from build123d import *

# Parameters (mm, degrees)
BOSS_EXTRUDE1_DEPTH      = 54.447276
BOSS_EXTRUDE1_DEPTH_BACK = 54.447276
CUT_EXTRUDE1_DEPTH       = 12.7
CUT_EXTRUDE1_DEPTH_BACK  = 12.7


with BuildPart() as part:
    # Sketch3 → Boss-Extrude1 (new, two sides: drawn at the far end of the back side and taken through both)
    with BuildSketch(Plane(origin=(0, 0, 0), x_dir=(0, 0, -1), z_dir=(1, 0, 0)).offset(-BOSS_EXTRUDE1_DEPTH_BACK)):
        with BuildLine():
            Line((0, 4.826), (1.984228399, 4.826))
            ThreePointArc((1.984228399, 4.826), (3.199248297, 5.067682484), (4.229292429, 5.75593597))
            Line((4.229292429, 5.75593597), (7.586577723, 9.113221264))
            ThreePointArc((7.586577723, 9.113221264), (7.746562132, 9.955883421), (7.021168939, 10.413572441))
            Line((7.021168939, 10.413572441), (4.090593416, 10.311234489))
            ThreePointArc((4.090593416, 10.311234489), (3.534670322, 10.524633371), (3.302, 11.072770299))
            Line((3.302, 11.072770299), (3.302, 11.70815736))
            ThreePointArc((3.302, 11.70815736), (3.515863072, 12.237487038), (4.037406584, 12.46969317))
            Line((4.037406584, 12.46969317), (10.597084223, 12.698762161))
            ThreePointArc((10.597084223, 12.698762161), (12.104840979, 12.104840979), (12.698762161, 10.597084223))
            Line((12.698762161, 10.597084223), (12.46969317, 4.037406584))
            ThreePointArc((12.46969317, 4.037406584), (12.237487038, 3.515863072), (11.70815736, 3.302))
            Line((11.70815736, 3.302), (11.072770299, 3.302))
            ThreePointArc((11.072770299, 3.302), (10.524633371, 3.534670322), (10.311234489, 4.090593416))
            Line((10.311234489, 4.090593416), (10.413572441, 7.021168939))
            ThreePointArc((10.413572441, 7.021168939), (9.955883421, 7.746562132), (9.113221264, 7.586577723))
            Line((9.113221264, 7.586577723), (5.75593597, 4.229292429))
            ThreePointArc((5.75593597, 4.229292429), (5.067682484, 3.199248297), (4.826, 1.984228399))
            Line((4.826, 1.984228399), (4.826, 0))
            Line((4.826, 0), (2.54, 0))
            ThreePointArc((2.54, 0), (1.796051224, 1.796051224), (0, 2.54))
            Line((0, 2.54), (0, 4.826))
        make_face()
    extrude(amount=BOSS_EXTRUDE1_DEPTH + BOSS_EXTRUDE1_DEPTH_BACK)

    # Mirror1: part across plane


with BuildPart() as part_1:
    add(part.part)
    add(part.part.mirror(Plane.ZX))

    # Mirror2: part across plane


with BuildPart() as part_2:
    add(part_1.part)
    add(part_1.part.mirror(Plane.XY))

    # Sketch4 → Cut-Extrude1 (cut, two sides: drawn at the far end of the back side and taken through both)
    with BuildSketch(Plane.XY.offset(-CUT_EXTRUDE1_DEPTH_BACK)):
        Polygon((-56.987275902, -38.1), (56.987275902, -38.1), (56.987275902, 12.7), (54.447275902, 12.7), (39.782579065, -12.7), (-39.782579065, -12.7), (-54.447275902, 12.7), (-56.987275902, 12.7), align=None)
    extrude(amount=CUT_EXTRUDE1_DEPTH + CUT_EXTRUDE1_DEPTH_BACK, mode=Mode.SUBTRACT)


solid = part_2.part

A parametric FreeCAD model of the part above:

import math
import FreeCAD as App
import Part
import Sketcher
Q = App.Units.Quantity

doc = App.newDocument("Part")
params = doc.addObject("Spreadsheet::Sheet", "Params")
for row, (alias, value) in enumerate([
    ("sketch1_radius", "0.1 in"),
    ("sketch1_radius2", "0.03 in"),
    ("sketch1_radius3", "0.08 in"),
    ("sketch1_radius4", "0.125 in"),
    ("sketch1_width", "0.09 in"),
    ("pad1_length", "54.447276 mm"),
    ("pad1_length2", "54.447276 mm"),
    ("sketch2_height", "2 in"),
    ("sketch2_width", "0.1 in"),
], start=1):
    params.set(f"A{row}", alias)
    params.set(f"B{row}", "=" + value)
    params.setAlias(f"B{row}", alias)

body = doc.addObject("PartDesign::Body", "Body")

# Sketch on YZ plane
sketch1 = body.newObject("Sketcher::SketchObject", "Sketch")
sketch1.AttachmentSupport = (doc.getObject("YZ_Plane"), [""])
sketch1.MapMode = "FlatFace"
sketch1.addGeometry([
    Part.LineSegment(App.Vector(4.826, -1.984228, 0), App.Vector(4.826, 0, 0)),  # 0
    Part.LineSegment(App.Vector(4.826, 0, 0), App.Vector(2.54, 0, 0)),  # 1
    Part.ArcOfCircle(Part.Circle(App.Vector(0, 0, 0), App.Vector(0, 0, 1), 2.54), math.radians(-90), math.radians(0)),  # 2
    Part.LineSegment(App.Vector(0, -2.54, 0), App.Vector(0, -4.826, 0)),  # 3
    Part.LineSegment(App.Vector(0, -4.826, 0), App.Vector(1.984228, -4.826, 0)),  # 4
    Part.ArcOfCircle(Part.Circle(App.Vector(1.984228, -8.001, 0), App.Vector(0, 0, 1), 3.175), math.radians(45), math.radians(90)),  # 5
    Part.LineSegment(App.Vector(4.229292, -5.755936, 0), App.Vector(7.586578, -9.113221, 0)),  # 6
    Part.ArcOfCircle(Part.Circle(App.Vector(7.047762, -9.652037, 0), App.Vector(0, 0, 1), 0.762), math.radians(-92), math.radians(45)),  # 7
    Part.LineSegment(App.Vector(7.021169, -10.413572, 0), App.Vector(4.090593, -10.311234, 0)),  # 8
    Part.ArcOfCircle(Part.Circle(App.Vector(4.064, -11.07277, 0), App.Vector(0, 0, 1), 0.762), math.radians(88), math.radians(180)),  # 9
    Part.LineSegment(App.Vector(3.302, -11.07277, 0), App.Vector(3.302, -11.708157, 0)),  # 10
    Part.ArcOfCircle(Part.Circle(App.Vector(4.064, -11.708157, 0), App.Vector(0, 0, 1), 0.762), math.radians(180), math.radians(268)),  # 11
    Part.LineSegment(App.Vector(4.037407, -12.469693, 0), App.Vector(10.597084, -12.698762, 0)),  # 12
    Part.ArcOfCircle(Part.Circle(App.Vector(10.668, -10.668, 0), App.Vector(0, 0, 1), 2.032), math.radians(-92), math.radians(2)),  # 13
    Part.LineSegment(App.Vector(12.698762, -10.597084, 0), App.Vector(12.469693, -4.037407, 0)),  # 14
    Part.ArcOfCircle(Part.Circle(App.Vector(11.708157, -4.064, 0), App.Vector(0, 0, 1), 0.762), math.radians(2), math.radians(90)),  # 15
    Part.LineSegment(App.Vector(11.708157, -3.302, 0), App.Vector(11.07277, -3.302, 0)),  # 16
    Part.ArcOfCircle(Part.Circle(App.Vector(11.07277, -4.064, 0), App.Vector(0, 0, 1), 0.762), math.radians(90), math.radians(182)),  # 17
    Part.LineSegment(App.Vector(10.311234, -4.090593, 0), App.Vector(10.413572, -7.021169, 0)),  # 18
    Part.ArcOfCircle(Part.Circle(App.Vector(9.652037, -7.047762, 0), App.Vector(0, 0, 1), 0.762), math.radians(-135), math.radians(2)),  # 19
    Part.LineSegment(App.Vector(9.113221, -7.586578, 0), App.Vector(5.755936, -4.229292, 0)),  # 20
    Part.ArcOfCircle(Part.Circle(App.Vector(8.001, -1.984228, 0), App.Vector(0, 0, 1), 3.175), math.radians(180), math.radians(225)),  # 21
], False)
sketch1.addConstraint([
    Sketcher.Constraint("Coincident", 0, 2, 1, 1),
    Sketcher.Constraint("Coincident", 1, 2, 2, 2),
    Sketcher.Constraint("Coincident", 2, 1, 3, 1),
    Sketcher.Constraint("Coincident", 3, 2, 4, 1),
    Sketcher.Constraint("Tangent", 4, 2, 5, 2),
    Sketcher.Constraint("Tangent", 5, 1, 6, 1),
    Sketcher.Constraint("Tangent", 6, 2, 7, 2),
    Sketcher.Constraint("Tangent", 7, 1, 8, 1),
    Sketcher.Constraint("Tangent", 8, 2, 9, 1),
    Sketcher.Constraint("Tangent", 9, 2, 10, 1),
    Sketcher.Constraint("Tangent", 10, 2, 11, 1),
    Sketcher.Constraint("Tangent", 11, 2, 12, 1),
    Sketcher.Constraint("Tangent", 12, 2, 13, 1),
    Sketcher.Constraint("Tangent", 13, 2, 14, 1),
    Sketcher.Constraint("Tangent", 14, 2, 15, 1),
    Sketcher.Constraint("Tangent", 15, 2, 16, 1),
    Sketcher.Constraint("Tangent", 16, 2, 17, 1),
    Sketcher.Constraint("Tangent", 17, 2, 18, 1),
    Sketcher.Constraint("Tangent", 18, 2, 19, 2),
    Sketcher.Constraint("Tangent", 19, 1, 20, 1),
    Sketcher.Constraint("Tangent", 20, 2, 21, 2),
    Sketcher.Constraint("Tangent", 21, 1, 0, 1),
    Sketcher.Constraint("Vertical", 0),
    Sketcher.Constraint("Horizontal", 1),
    Sketcher.Constraint("Vertical", 3),
    Sketcher.Constraint("Horizontal", 4),
    Sketcher.Constraint("Vertical", 10),
    Sketcher.Constraint("Horizontal", 16),
    Sketcher.Constraint("Coincident", 2, 3, -1, 1),
    Sketcher.Constraint("Equal", 7, 9),
    Sketcher.Constraint("Equal", 9, 11),
    Sketcher.Constraint("Equal", 11, 15),
    Sketcher.Constraint("Equal", 15, 17),
    Sketcher.Constraint("Equal", 17, 19),
    Sketcher.Constraint("Equal", 5, 21),
    Sketcher.Constraint("PointOnObject", 0, 2, -1),
    Sketcher.Constraint("PointOnObject", 2, 1, -2),
    Sketcher.Constraint("Parallel", 8, 12),
    Sketcher.Constraint("Parallel", 14, 18),
    Sketcher.Constraint("Parallel", 6, 20),
    Sketcher.Constraint("Equal", 4, 0),
    Sketcher.Constraint("Equal", 1, 3),
    Sketcher.Constraint("Equal", 16, 10),
    Sketcher.Constraint("Equal", 12, 14),
    Sketcher.Constraint("Equal", 8, 18),
    Sketcher.Constraint("Equal", 6, 20),
    Sketcher.Constraint("Radius", 2, Q("0.1 in")),
    Sketcher.Constraint("Radius", 7, Q("0.03 in")),
    Sketcher.Constraint("Radius", 13, Q("0.08 in")),
    Sketcher.Constraint("Angle", 6, Q("-45 deg")),
    Sketcher.Constraint("Angle", 8, Q("178 deg")),
    Sketcher.Constraint("Radius", 5, Q("0.125 in")),
    Sketcher.Constraint("DistanceX", 1, 2, 1, 1, Q("0.09 in")),
    Sketcher.Constraint("DistanceX", -1, 1, 9, 3, Q("0.16 in")),
    Sketcher.Constraint("DistanceX", -1, 1, 13, 3, Q("0.42 in")),
    Sketcher.Constraint("DistanceX", 4, 1, 4, 2, 1.984228),
    Sketcher.Constraint("DistanceY", 7, 3, 5, 1, 3.896101),
])
sketch1.setExpression("Constraints[46]", "Params.sketch1_radius")
sketch1.setExpression("Constraints[47]", "Params.sketch1_radius2")
sketch1.setExpression("Constraints[48]", "Params.sketch1_radius3")
sketch1.setExpression("Constraints[51]", "Params.sketch1_radius4")
sketch1.setExpression("Constraints[52]", "Params.sketch1_width")
pad1 = body.newObject("PartDesign::Pad", "Pad")
pad1.Profile = sketch1
pad1.Type = "TwoLengths"
pad1.setExpression("Length", "Params.pad1_length")
pad1.setExpression("Length2", "Params.pad1_length2")
body2 = doc.addObject("PartDesign::Body", "Body001")
doc.recompute()

body2.BaseFeature = body
doc.recompute()

mirroring = doc.addObject("Part::Mirroring", "Mirroring")
mirroring.Source = body
mirroring.Base = App.Vector(0, 0, 0)
mirroring.Normal = App.Vector(0, 1, 0)
body3 = doc.addObject("PartDesign::Body", "Body002")
body3.BaseFeature = mirroring
boolean = body2.newObject("PartDesign::Boolean", "Boolean")
boolean.Type = "Fuse"
boolean.addObjects([body3])
doc.recompute()
body4 = doc.addObject("PartDesign::Body", "Body003")
doc.recompute()

body4.BaseFeature = body2
doc.recompute()

mirroring2 = doc.addObject("Part::Mirroring", "Mirroring001")
mirroring2.Source = body2
mirroring2.Base = App.Vector(0, 0, 0)
mirroring2.Normal = App.Vector(0, 0, 1)
body5 = doc.addObject("PartDesign::Body", "Body004")
body5.BaseFeature = mirroring2
boolean2 = body4.newObject("PartDesign::Boolean", "Boolean001")
boolean2.Type = "Fuse"
boolean2.addObjects([body5])
doc.recompute()

# Sketch on XY plane
sketch2 = body4.newObject("Sketcher::SketchObject", "Sketch001")
sketch2.AttachmentSupport = (doc.getObject("XY_Plane003"), [""])
sketch2.MapMode = "FlatFace"
sketch2.addGeometry([
    Part.LineSegment(App.Vector(-56.987276, -38.1, 0), App.Vector(56.987276, -38.1, 0)),  # 0
    Part.LineSegment(App.Vector(56.987276, -38.1, 0), App.Vector(56.987276, 12.7, 0)),  # 1
    Part.LineSegment(App.Vector(56.987276, 12.7, 0), App.Vector(54.447276, 12.7, 0)),  # 2
    Part.LineSegment(App.Vector(54.447276, 12.7, 0), App.Vector(39.782579, -12.7, 0)),  # 3
    Part.LineSegment(App.Vector(39.782579, -12.7, 0), App.Vector(-39.782579, -12.7, 0)),  # 4
    Part.LineSegment(App.Vector(-39.782579, -12.7, 0), App.Vector(-54.447276, 12.7, 0)),  # 5
    Part.LineSegment(App.Vector(-54.447276, 12.7, 0), App.Vector(-56.987276, 12.7, 0)),  # 6
    Part.LineSegment(App.Vector(-56.987276, 12.7, 0), App.Vector(-56.987276, -38.1, 0)),  # 7
], False)
sketch2.addConstraint([
    Sketcher.Constraint("Coincident", 0, 2, 1, 1),
    Sketcher.Constraint("Coincident", 1, 2, 2, 1),
    Sketcher.Constraint("Coincident", 2, 2, 3, 1),
    Sketcher.Constraint("Coincident", 3, 2, 4, 1),
    Sketcher.Constraint("Coincident", 4, 2, 5, 1),
    Sketcher.Constraint("Coincident", 5, 2, 6, 1),
    Sketcher.Constraint("Coincident", 6, 2, 7, 1),
    Sketcher.Constraint("Coincident", 7, 2, 0, 1),
    Sketcher.Constraint("Horizontal", 0),
    Sketcher.Constraint("Vertical", 1),
    Sketcher.Constraint("Horizontal", 2),
    Sketcher.Constraint("Horizontal", 4),
    Sketcher.Constraint("Horizontal", 6),
    Sketcher.Constraint("Vertical", 7),
    Sketcher.Constraint("Symmetric", 2, 2, 5, 2, -2),
    Sketcher.Constraint("Equal", 2, 6),
    Sketcher.Constraint("Equal", 3, 5),
    Sketcher.Constraint("DistanceY", 1, 1, 1, 2, Q("2 in")),
    Sketcher.Constraint("DistanceX", 2, 2, 2, 1, Q("0.1 in")),
    Sketcher.Constraint("Angle", 3, Q("-120 deg")),
    Sketcher.Constraint("DistanceY", 3, 2, 2, 2, Q("1 in")),
    Sketcher.Constraint("DistanceY", 0, 2, -1, 1, Q("1.5 in")),
    Sketcher.Constraint("DistanceX", 0, 1, 0, 2, 113.974552),
])
sketch2.setExpression("Constraints[17]", "Params.sketch2_height")
sketch2.setExpression("Constraints[18]", "Params.sketch2_width")
pocket1 = body4.newObject("PartDesign::Pocket", "Pocket")
pocket1.Profile = sketch2
pocket1.Type = "ThroughAll"
pocket1.Midplane = True
mirroring.Visibility = False
mirroring2.Visibility = False

doc.recompute()
